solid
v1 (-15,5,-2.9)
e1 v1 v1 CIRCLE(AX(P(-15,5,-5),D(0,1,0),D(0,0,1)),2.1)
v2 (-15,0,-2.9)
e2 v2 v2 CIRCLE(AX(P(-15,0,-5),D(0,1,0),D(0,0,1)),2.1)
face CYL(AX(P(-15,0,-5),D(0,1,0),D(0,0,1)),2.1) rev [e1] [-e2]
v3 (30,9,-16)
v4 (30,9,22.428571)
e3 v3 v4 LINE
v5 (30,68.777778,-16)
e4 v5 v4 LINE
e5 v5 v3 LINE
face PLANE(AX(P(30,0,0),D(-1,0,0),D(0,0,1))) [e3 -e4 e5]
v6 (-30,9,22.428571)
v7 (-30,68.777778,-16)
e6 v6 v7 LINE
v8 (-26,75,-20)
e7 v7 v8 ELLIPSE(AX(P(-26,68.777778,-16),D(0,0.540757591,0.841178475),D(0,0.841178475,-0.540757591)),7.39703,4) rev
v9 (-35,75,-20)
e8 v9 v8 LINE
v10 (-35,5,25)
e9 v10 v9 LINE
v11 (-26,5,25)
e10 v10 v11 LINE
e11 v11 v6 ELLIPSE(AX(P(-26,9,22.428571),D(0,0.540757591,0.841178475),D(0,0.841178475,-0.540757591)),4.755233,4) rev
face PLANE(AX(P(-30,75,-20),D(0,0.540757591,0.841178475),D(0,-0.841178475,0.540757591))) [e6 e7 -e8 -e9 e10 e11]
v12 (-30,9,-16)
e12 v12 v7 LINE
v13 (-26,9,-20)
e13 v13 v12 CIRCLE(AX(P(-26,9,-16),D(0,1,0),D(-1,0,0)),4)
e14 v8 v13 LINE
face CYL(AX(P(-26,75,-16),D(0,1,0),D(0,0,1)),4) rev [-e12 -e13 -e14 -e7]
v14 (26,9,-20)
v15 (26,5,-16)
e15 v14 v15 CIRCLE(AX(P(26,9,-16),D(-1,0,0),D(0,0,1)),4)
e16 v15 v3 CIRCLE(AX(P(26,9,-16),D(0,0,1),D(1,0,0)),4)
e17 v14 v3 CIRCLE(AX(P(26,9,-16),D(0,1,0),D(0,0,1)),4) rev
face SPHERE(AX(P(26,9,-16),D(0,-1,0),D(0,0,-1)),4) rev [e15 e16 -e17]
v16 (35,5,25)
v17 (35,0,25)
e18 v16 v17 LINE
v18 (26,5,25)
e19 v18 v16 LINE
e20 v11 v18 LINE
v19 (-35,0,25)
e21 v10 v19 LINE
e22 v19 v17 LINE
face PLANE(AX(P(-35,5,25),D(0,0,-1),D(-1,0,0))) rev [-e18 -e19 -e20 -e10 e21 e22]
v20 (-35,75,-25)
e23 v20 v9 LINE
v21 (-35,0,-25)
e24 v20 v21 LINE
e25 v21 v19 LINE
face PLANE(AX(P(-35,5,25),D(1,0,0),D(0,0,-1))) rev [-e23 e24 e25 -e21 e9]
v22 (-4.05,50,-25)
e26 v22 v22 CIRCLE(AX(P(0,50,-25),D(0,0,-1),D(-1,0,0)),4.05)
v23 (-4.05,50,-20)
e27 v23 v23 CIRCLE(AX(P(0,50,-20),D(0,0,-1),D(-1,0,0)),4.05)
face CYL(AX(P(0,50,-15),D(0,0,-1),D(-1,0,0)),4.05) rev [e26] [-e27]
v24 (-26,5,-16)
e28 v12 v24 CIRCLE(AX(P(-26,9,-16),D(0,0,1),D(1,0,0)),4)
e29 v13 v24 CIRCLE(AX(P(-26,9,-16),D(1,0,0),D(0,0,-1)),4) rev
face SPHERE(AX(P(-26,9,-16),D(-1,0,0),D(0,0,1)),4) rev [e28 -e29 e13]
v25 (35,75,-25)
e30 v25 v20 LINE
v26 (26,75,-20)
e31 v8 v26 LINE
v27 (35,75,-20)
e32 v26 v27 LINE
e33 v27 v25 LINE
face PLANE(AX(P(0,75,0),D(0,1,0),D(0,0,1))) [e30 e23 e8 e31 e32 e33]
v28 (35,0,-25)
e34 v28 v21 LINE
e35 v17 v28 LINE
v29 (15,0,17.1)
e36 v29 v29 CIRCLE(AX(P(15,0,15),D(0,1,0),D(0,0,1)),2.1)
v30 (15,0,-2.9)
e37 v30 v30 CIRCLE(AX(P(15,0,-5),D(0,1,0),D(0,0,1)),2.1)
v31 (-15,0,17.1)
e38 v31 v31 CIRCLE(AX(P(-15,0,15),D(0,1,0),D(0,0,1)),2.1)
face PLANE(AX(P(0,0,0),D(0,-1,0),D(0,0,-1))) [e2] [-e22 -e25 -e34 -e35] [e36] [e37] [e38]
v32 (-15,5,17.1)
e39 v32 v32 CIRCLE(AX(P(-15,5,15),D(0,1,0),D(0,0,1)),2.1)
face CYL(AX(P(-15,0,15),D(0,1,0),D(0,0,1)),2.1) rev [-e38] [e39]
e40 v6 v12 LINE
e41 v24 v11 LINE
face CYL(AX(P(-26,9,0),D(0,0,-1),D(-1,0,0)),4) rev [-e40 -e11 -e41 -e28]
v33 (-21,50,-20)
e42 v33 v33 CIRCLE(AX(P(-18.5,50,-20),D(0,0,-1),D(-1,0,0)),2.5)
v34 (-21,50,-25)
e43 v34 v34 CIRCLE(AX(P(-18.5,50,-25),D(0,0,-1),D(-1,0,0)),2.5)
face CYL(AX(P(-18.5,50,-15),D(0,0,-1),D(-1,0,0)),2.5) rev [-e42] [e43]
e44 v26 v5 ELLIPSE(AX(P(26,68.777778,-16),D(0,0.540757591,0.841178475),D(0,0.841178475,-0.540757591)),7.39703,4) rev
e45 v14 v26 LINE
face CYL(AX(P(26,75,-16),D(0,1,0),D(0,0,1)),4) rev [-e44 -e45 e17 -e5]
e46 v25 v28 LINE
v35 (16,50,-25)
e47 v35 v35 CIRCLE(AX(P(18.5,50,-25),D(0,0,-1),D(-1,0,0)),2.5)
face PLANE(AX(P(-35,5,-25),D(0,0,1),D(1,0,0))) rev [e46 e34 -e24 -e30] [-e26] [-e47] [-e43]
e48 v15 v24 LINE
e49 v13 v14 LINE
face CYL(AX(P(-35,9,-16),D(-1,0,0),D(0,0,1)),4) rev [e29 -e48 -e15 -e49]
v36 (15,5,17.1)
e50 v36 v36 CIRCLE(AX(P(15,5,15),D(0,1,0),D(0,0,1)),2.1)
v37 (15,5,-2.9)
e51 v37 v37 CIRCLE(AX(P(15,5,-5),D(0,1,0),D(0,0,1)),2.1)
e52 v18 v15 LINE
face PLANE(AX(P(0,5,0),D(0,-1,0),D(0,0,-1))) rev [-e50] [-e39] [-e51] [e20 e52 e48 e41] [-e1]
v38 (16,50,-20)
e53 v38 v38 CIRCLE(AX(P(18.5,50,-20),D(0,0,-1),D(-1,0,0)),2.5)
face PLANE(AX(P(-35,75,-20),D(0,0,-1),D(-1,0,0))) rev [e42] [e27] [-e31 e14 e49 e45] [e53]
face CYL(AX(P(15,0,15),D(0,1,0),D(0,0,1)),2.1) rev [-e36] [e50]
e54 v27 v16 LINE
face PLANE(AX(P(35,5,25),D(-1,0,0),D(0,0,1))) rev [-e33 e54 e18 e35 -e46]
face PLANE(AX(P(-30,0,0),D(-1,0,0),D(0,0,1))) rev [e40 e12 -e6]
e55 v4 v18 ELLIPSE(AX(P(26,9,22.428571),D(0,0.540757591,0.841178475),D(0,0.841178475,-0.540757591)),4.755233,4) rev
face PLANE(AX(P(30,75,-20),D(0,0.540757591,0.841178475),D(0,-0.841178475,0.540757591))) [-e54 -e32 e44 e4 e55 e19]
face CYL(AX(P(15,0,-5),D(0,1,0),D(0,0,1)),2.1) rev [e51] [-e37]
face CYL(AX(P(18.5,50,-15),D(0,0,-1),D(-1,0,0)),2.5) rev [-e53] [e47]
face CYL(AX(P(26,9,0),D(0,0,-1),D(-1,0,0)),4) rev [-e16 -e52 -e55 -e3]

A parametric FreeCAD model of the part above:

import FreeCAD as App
import Part
import Sketcher
from FreeCAD import Vector


def edges_at(feature, points):
    """Names of the edges that pass closest to the given points."""
    edges = feature.Shape.Edges
    near = lambda p: min(range(len(edges)), key=lambda i: edges[i].distToShape(Part.Vertex(*p))[0])
    return sorted({f"Edge{near(p) + 1}" for p in points})

doc = App.newDocument("Part")
body = doc.addObject("PartDesign::Body", "Body")

# Sketch on XZ plane
sketch1 = body.newObject("Sketcher::SketchObject", "Sketch")
sketch1.AttachmentSupport = (doc.getObject("XZ_Plane"), [""])
sketch1.MapMode = "FlatFace"
sketch1.addGeometry([
    Part.LineSegment(Vector(-35, -25, 0), Vector(-35, 25, 0)),
    Part.LineSegment(Vector(-35, 25, 0), Vector(35, 25, 0)),
    Part.LineSegment(Vector(35, 25, 0), Vector(35, -25, 0)),
    Part.LineSegment(Vector(35, -25, 0), Vector(-35, -25, 0)),
], False)
sketch1.addConstraint([
    Sketcher.Constraint("Coincident", 0, 2, 1, 1),
    Sketcher.Constraint("Coincident", 1, 2, 2, 1),
    Sketcher.Constraint("Coincident", 2, 2, 3, 1),
    Sketcher.Constraint("Coincident", 3, 2, 0, 1),
    Sketcher.Constraint("Vertical", 0),
    Sketcher.Constraint("Horizontal", 1),
    Sketcher.Constraint("Vertical", 2),
    Sketcher.Constraint("Horizontal", 3),
    Sketcher.Constraint("Symmetric", 0, 2, 2, 2, -1, 1),
    Sketcher.Constraint("DistanceX", 1, 1, 1, 2, 70.0),
    Sketcher.Constraint("DistanceY", 0, 1, 0, 2, 50.0),
])
pad1 = body.newObject("PartDesign::Pad", "Pad")
pad1.Profile = sketch1
pad1.Length = 5
pad1.Reversed = True

# Sketch on XZ plane
sketch2 = body.newObject("Sketcher::SketchObject", "Sketch001")
sketch2.AttachmentSupport = (doc.getObject("XZ_Plane"), [""])
sketch2.MapMode = "FlatFace"
sketch2.AttachmentOffset = App.Placement(Vector(0, 0, -5), App.Rotation())
sketch2.addGeometry([
    Part.LineSegment(Vector(-35, -25, 0), Vector(-35, -20, 0)),
    Part.LineSegment(Vector(-35, -20, 0), Vector(35, -20, 0)),
    Part.LineSegment(Vector(35, -20, 0), Vector(35, -25, 0)),
    Part.LineSegment(Vector(35, -25, 0), Vector(-35, -25, 0)),
], False)
sketch2.addConstraint([
    Sketcher.Constraint("Coincident", 0, 2, 1, 1),
    Sketcher.Constraint("Coincident", 1, 2, 2, 1),
    Sketcher.Constraint("Coincident", 2, 2, 3, 1),
    Sketcher.Constraint("Coincident", 3, 2, 0, 1),
    Sketcher.Constraint("Vertical", 0),
    Sketcher.Constraint("Horizontal", 1),
    Sketcher.Constraint("Vertical", 2),
    Sketcher.Constraint("Horizontal", 3),
    Sketcher.Constraint("DistanceX", 1, 1, 1, 2, 70.0),
    Sketcher.Constraint("DistanceY", 0, 1, 0, 2, 5.0),
    Sketcher.Constraint("DistanceX", 0, 2, -1, 1, 35.0),
    Sketcher.Constraint("DistanceY", 0, 2, -1, 1, 20.0),
])
pad2 = body.newObject("PartDesign::Pad", "Pad001")
pad2.Profile = sketch2
pad2.Length = 70
pad2.Reversed = True

# Sketch on XY plane
sketch3 = body.newObject("Sketcher::SketchObject", "Sketch002")
sketch3.AttachmentSupport = (doc.getObject("XY_Plane"), [""])
sketch3.MapMode = "FlatFace"
sketch3.AttachmentOffset = App.Placement(Vector(0, 0, -25), App.Rotation())
sketch3.addGeometry(Part.Circle(Vector(0, 50, 0), Vector(0, 0, 1), 4), False)
sketch3.addConstraint([
    Sketcher.Constraint("PointOnObject", 0, 3, -2),
    Sketcher.Constraint("Diameter", 0, 8.1),
    Sketcher.Constraint("DistanceY", -1, 1, 0, 3, 50.0),
])
pocket1 = body.newObject("PartDesign::Pocket", "Pocket")
pocket1.Profile = sketch3
pocket1.Length = 10
pocket1.Reversed = True

# Sketch on XY plane
sketch4 = body.newObject("Sketcher::SketchObject", "Sketch003")
sketch4.AttachmentSupport = (doc.getObject("XY_Plane"), [""])
sketch4.MapMode = "FlatFace"
sketch4.AttachmentOffset = App.Placement(Vector(0, 0, -25), App.Rotation())
sketch4.addGeometry([
    Part.Circle(Vector(18.5, 50, 0), Vector(0, 0, 1), 2.5),
    Part.Circle(Vector(-18.5, 50, 0), Vector(0, 0, 1), 2.5),
], False)
sketch4.addConstraint([
    Sketcher.Constraint("Equal", 0, 1),
    Sketcher.Constraint("Symmetric", 0, 3, 1, 3, -2),
    Sketcher.Constraint("Diameter", 0, 5.0),
    Sketcher.Constraint("DistanceY", -1, 1, 0, 3, 50.0),
    Sketcher.Constraint("DistanceX", 1, 3, 0, 3, 37.0),
])
pocket2 = body.newObject("PartDesign::Pocket", "Pocket001")
pocket2.Profile = sketch4
pocket2.Length = 10
pocket2.Reversed = True

# Sketch on YZ plane
sketch5 = body.newObject("Sketcher::SketchObject", "Sketch004")
sketch5.AttachmentSupport = (doc.getObject("YZ_Plane"), [""])
sketch5.MapMode = "FlatFace"
sketch5.AttachmentOffset = App.Placement(Vector(0, 0, 35), App.Rotation())
sketch5.addGeometry([
    Part.LineSegment(Vector(75, -20, 0), Vector(5, 25, 0)),
    Part.LineSegment(Vector(5, 25, 0), Vector(5, -20, 0)),
    Part.LineSegment(Vector(5, -20, 0), Vector(75, -20, 0)),
], False)
sketch5.addConstraint([
    Sketcher.Constraint("Coincident", 0, 2, 1, 1),
    Sketcher.Constraint("Coincident", 1, 2, 2, 1),
    Sketcher.Constraint("Coincident", 2, 2, 0, 1),
    Sketcher.Constraint("Vertical", 1),
    Sketcher.Constraint("Horizontal", 2),
    Sketcher.Constraint("DistanceX", 2, 1, 2, 2, 70.0),
    Sketcher.Constraint("DistanceY", 1, 2, 1, 1, 45.0),
    Sketcher.Constraint("DistanceX", -1, 1, 0, 2, 5.0),
    Sketcher.Constraint("DistanceY", -1, 1, 0, 2, 25.0),
])
pad3 = body.newObject("PartDesign::Pad", "Pad002")
pad3.Profile = sketch5
pad3.Length = 5
pad3.Reversed = True

# Sketch on YZ plane
sketch6 = body.newObject("Sketcher::SketchObject", "Sketch005")
sketch6.AttachmentSupport = (doc.getObject("YZ_Plane"), [""])
sketch6.MapMode = "FlatFace"
sketch6.AttachmentOffset = App.Placement(Vector(0, 0, -35), App.Rotation())
sketch6.addGeometry([
    Part.LineSegment(Vector(5, 25, 0), Vector(75, -20, 0)),
    Part.LineSegment(Vector(75, -20, 0), Vector(5, -20, 0)),
    Part.LineSegment(Vector(5, -20, 0), Vector(5, 25, 0)),
], False)
sketch6.addConstraint([
    Sketcher.Constraint("Coincident", 0, 2, 1, 1),
    Sketcher.Constraint("Coincident", 1, 2, 2, 1),
    Sketcher.Constraint("Coincident", 2, 2, 0, 1),
    Sketcher.Constraint("Horizontal", 1),
    Sketcher.Constraint("Vertical", 2),
    Sketcher.Constraint("DistanceX", 1, 2, 1, 1, 70.0),
    Sketcher.Constraint("DistanceY", 2, 1, 2, 2, 45.0),
    Sketcher.Constraint("DistanceX", -1, 1, 0, 2, 75.0),
    Sketcher.Constraint("DistanceY", 0, 2, -1, 1, 20.0),
])
pad4 = body.newObject("PartDesign::Pad", "Pad003")
pad4.Profile = sketch6
pad4.Length = 5
doc.recompute()

fillet = body.newObject("PartDesign::Fillet", "Fillet")
fillet.Base = (pad4, edges_at(pad4, [
    (30, 40, -20),
    (30, 5, 2.5),
    (0, 5, -20),
    (-30, 40, -20),
    (-30, 5, 2.5),
]))
fillet.Radius = 4

# Sketch on XZ plane
sketch7 = body.newObject("Sketcher::SketchObject", "Sketch006")
sketch7.AttachmentSupport = (doc.getObject("XZ_Plane"), [""])
sketch7.MapMode = "FlatFace"
sketch7.AttachmentOffset = App.Placement(Vector(0, 0, -5), App.Rotation())
sketch7.addGeometry([
    Part.Circle(Vector(-15, -5, 0), Vector(0, 0, 1), 2.1),
    Part.Circle(Vector(15, -5, 0), Vector(0, 0, 1), 2.1),
    Part.Circle(Vector(15, 15, 0), Vector(0, 0, 1), 2.1),
    Part.Circle(Vector(-15, 15, 0), Vector(0, 0, 1), 2.1),
], False)
sketch7.addConstraint([
    Sketcher.Constraint("Equal", 0, 1),
    Sketcher.Constraint("Equal", 1, 2),
    Sketcher.Constraint("Equal", 2, 3),
    Sketcher.Constraint("Symmetric", 0, 3, 1, 3, -2),
    Sketcher.Constraint("Symmetric", 2, 3, 3, 3, -2),
    Sketcher.Constraint("Vertical", 1, 3, 2, 3),
    Sketcher.Constraint("Diameter", 0, 4.2),
    Sketcher.Constraint("DistanceX", 0, 3, -1, 1, 15.0),
    Sketcher.Constraint("DistanceY", 0, 3, -1, 1, 5.0),
    Sketcher.Constraint("DistanceY", -1, 1, 2, 3, 15.0),
])
pocket3 = body.newObject("PartDesign::Pocket", "Pocket002")
pocket3.Profile = sketch7
pocket3.Length = 5
pocket3.Reversed = True

doc.recompute()
